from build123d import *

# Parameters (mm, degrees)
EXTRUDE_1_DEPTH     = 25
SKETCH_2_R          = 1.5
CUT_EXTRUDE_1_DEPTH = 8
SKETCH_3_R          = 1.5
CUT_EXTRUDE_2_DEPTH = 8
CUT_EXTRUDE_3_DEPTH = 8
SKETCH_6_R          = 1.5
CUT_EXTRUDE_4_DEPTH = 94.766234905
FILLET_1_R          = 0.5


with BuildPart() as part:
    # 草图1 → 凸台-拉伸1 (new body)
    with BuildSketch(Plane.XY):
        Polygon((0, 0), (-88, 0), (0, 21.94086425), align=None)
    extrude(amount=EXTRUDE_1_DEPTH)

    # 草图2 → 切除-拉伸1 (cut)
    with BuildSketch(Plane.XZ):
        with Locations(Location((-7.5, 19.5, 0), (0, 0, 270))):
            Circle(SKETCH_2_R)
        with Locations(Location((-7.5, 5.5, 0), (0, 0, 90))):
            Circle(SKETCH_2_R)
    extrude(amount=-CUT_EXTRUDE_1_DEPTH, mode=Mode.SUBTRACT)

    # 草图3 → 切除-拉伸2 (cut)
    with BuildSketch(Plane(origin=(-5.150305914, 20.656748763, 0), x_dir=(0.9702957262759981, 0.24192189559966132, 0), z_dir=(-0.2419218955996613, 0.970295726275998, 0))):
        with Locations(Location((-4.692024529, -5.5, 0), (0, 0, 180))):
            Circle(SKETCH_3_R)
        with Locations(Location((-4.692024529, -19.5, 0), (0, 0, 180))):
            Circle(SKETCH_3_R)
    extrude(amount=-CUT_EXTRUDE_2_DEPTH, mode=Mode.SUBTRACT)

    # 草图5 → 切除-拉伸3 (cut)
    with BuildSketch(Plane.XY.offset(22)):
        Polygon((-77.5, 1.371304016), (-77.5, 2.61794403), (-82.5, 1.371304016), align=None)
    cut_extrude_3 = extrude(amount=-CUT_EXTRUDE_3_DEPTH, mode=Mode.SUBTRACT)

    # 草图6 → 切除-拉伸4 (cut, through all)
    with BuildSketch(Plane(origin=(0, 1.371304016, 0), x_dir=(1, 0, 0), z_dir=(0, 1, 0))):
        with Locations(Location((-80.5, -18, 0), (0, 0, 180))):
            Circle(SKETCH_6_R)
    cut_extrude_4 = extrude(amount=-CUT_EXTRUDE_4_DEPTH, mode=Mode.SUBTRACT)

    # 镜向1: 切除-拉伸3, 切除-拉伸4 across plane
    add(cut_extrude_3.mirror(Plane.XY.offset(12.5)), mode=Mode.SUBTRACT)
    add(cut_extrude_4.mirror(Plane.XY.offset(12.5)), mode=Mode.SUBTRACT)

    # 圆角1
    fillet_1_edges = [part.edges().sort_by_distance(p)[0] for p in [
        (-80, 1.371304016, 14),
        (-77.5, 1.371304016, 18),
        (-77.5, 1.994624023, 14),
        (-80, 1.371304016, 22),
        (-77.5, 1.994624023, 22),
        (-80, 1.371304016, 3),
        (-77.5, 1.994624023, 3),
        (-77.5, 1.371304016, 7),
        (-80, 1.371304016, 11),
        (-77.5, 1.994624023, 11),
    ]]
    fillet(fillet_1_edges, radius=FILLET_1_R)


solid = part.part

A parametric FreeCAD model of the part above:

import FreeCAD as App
import Part
import Sketcher
from FreeCAD import Vector
Q = App.Units.Quantity


def edges_at(feature, points):
    """Names of the edges that pass closest to the given points."""
    edges = feature.Shape.Edges
    near = lambda p: min(range(len(edges)), key=lambda i: edges[i].distToShape(Part.Vertex(*p))[0])
    return sorted({f"Edge{near(p) + 1}" for p in points})


def add_polygon(sketch, points):
    """Adds a closed chain of lines whose ends are joined by coincident constraints."""
    first, n = sketch.GeometryCount, len(points)
    for a, b in zip(points, points[1:] + points[:1]):
        sketch.addGeometry(Part.LineSegment(App.Vector(*a, 0), App.Vector(*b, 0)), False)
    for i in range(n):
        sketch.addConstraint(Sketcher.Constraint("Coincident", first + i, 2, first + (i + 1) % n, 1))

doc = App.newDocument("Part")
body = doc.addObject("PartDesign::Body", "Body")

# Sketch on XY plane
sketch1 = body.newObject("Sketcher::SketchObject", "Sketch")
sketch1.AttachmentSupport = (doc.getObject("XY_Plane"), [""])
sketch1.MapMode = "FlatFace"
add_polygon(sketch1, [(-88, 0), (0, 0), (0, 21.940864)])  # lines 0-2
sketch1.addConstraint([
    Sketcher.Constraint("Horizontal", 0),
    Sketcher.Constraint("Vertical", 1),
    Sketcher.Constraint("Coincident", 0, 2, -1, 1),
    Sketcher.Constraint("DistanceX", 0, 1, 0, 2, Q("88 mm")),
    Sketcher.Constraint("Angle", 2, Q("-166 deg")),
])
pad1 = body.newObject("PartDesign::Pad", "Pad")
pad1.Profile = sketch1
pad1.Length = 25

# Sketch on XZ plane
sketch2 = body.newObject("Sketcher::SketchObject", "Sketch001")
sketch2.AttachmentSupport = (doc.getObject("XZ_Plane"), [""])
sketch2.MapMode = "FlatFace"
sketch2.addGeometry([
    Part.Circle(Vector(-7.5, 19.5, 0), Vector(0, 0, 1), 1.5),
    Part.Circle(Vector(-7.5, 5.5, 0), Vector(0, 0, 1), 1.5),
], False)
sketch2.addConstraint([
    Sketcher.Constraint("Equal", 0, 1),
    Sketcher.Constraint("Vertical", 0, 3, 1, 3),
    Sketcher.Constraint("Diameter", 0, Q("3 mm")),
    Sketcher.Constraint("DistanceY", 1, 3, 0, 3, Q("14 mm")),
    Sketcher.Constraint("DistanceX", 0, 3, -1, 1, Q("7.5 mm")),
    Sketcher.Constraint("DistanceY", -1, 1, 0, 3, Q("19.5 mm")),
])
pocket1 = body.newObject("PartDesign::Pocket", "Pocket")
pocket1.Profile = sketch2
pocket1.Length = 8

# Sketch on an angled plane
sketch3 = body.newObject("Sketcher::SketchObject", "Sketch002")
sketch3.Placement = App.Placement(Vector(-5.150306, 20.656749, 0), App.Rotation(Vector(0.970295726, 0.241921896, 0), Vector(0, 0, -1), Vector(-0.241921896, 0.970295726, 0), "ZXY"))
sketch3.addGeometry([
    Part.Circle(Vector(-4.692025, -5.5, 0), Vector(0, 0, 1), 1.5),
    Part.Circle(Vector(-4.692025, -19.5, 0), Vector(0, 0, 1), 1.5),
], False)
sketch3.addConstraint([
    Sketcher.Constraint("Equal", 0, 1),
    Sketcher.Constraint("Vertical", 0, 3, 1, 3),
    Sketcher.Constraint("Diameter", 0, Q("3 mm")),
    Sketcher.Constraint("DistanceY", 1, 3, 0, 3, Q("14 mm")),
    Sketcher.Constraint("DistanceY", 0, 3, -1, 1, Q("5.5 mm")),
    Sketcher.Constraint("DistanceX", 0, 3, -1, 1, Q("4.692025 mm")),
])
pocket2 = body.newObject("PartDesign::Pocket", "Pocket001")
pocket2.Profile = sketch3
pocket2.Length = 8

# Sketch on XY plane
sketch4 = body.newObject("Sketcher::SketchObject", "Sketch003")
sketch4.AttachmentSupport = (doc.getObject("XY_Plane"), [""])
sketch4.MapMode = "FlatFace"
sketch4.AttachmentOffset = App.Placement(Vector(0, 0, 22), App.Rotation())
add_polygon(sketch4, [(-77.5, 1.371304), (-77.5, 2.617944), (-82.5, 1.371304)])  # lines 0-2
sketch4.addConstraint([
    Sketcher.Constraint("Vertical", 0),
    Sketcher.Constraint("Horizontal", 2),
    Sketcher.Constraint("DistanceX", 2, 1, 2, 2, Q("5 mm")),
    Sketcher.Constraint("Angle", 1, Q("-166 deg")),
    Sketcher.Constraint("DistanceX", 0, 2, -1, 1, Q("77.5 mm")),
    Sketcher.Constraint("DistanceY", -1, 1, 0, 2, Q("2.617944 mm")),
])
pocket3 = body.newObject("PartDesign::Pocket", "Pocket002")
pocket3.Profile = sketch4
pocket3.Length = 8

# Sketch on XZ plane
sketch5 = body.newObject("Sketcher::SketchObject", "Sketch004")
sketch5.AttachmentSupport = (doc.getObject("XZ_Plane"), [""])
sketch5.MapMode = "FlatFace"
sketch5.AttachmentOffset = App.Placement(Vector(0, 0, -1.371304), App.Rotation())
sketch5.addGeometry(Part.Circle(Vector(-80.5, 18, 0), Vector(0, 0, 1), 1.5), False)
sketch5.addConstraint([
    Sketcher.Constraint("Diameter", 0, Q("3 mm")),
    Sketcher.Constraint("DistanceY", -1, 1, 0, 3, Q("18 mm")),
    Sketcher.Constraint("DistanceX", 0, 3, -1, 1, Q("80.5 mm")),
])
pocket4 = body.newObject("PartDesign::Pocket", "Pocket003")
pocket4.Profile = sketch5
pocket4.Type = "ThroughAll"
pocket4.Reversed = True
doc.recompute()

datumplane = body.newObject("PartDesign::Plane", "DatumPlane")
datumplane.AttachmentSupport = (doc.getObject("XY_Plane"), [""])
datumplane.MapMode = "FlatFace"
datumplane.AttachmentOffset = App.Placement(Vector(0, 0, 12.5), App.Rotation())
mirrored = body.newObject("PartDesign::Mirrored", "Mirrored")
mirrored.Originals = [pocket3, pocket4]
mirrored.MirrorPlane = (datumplane, [""])
body.Tip = mirrored
doc.recompute()

fillet = body.newObject("PartDesign::Fillet", "Fillet")
fillet.Base = (mirrored, edges_at(mirrored, [
    (-80, 1.371, 14),
    (-77.5, 1.371, 18),
    (-77.5, 1.995, 14),
    (-80, 1.371, 22),
    (-77.5, 1.995, 22),
    (-80, 1.371, 3),
    (-77.5, 1.995, 3),
    (-77.5, 1.371, 7),
    (-80, 1.371, 11),
    (-77.5, 1.995, 11),
]))
fillet.Radius = 0.5

doc.recompute()
